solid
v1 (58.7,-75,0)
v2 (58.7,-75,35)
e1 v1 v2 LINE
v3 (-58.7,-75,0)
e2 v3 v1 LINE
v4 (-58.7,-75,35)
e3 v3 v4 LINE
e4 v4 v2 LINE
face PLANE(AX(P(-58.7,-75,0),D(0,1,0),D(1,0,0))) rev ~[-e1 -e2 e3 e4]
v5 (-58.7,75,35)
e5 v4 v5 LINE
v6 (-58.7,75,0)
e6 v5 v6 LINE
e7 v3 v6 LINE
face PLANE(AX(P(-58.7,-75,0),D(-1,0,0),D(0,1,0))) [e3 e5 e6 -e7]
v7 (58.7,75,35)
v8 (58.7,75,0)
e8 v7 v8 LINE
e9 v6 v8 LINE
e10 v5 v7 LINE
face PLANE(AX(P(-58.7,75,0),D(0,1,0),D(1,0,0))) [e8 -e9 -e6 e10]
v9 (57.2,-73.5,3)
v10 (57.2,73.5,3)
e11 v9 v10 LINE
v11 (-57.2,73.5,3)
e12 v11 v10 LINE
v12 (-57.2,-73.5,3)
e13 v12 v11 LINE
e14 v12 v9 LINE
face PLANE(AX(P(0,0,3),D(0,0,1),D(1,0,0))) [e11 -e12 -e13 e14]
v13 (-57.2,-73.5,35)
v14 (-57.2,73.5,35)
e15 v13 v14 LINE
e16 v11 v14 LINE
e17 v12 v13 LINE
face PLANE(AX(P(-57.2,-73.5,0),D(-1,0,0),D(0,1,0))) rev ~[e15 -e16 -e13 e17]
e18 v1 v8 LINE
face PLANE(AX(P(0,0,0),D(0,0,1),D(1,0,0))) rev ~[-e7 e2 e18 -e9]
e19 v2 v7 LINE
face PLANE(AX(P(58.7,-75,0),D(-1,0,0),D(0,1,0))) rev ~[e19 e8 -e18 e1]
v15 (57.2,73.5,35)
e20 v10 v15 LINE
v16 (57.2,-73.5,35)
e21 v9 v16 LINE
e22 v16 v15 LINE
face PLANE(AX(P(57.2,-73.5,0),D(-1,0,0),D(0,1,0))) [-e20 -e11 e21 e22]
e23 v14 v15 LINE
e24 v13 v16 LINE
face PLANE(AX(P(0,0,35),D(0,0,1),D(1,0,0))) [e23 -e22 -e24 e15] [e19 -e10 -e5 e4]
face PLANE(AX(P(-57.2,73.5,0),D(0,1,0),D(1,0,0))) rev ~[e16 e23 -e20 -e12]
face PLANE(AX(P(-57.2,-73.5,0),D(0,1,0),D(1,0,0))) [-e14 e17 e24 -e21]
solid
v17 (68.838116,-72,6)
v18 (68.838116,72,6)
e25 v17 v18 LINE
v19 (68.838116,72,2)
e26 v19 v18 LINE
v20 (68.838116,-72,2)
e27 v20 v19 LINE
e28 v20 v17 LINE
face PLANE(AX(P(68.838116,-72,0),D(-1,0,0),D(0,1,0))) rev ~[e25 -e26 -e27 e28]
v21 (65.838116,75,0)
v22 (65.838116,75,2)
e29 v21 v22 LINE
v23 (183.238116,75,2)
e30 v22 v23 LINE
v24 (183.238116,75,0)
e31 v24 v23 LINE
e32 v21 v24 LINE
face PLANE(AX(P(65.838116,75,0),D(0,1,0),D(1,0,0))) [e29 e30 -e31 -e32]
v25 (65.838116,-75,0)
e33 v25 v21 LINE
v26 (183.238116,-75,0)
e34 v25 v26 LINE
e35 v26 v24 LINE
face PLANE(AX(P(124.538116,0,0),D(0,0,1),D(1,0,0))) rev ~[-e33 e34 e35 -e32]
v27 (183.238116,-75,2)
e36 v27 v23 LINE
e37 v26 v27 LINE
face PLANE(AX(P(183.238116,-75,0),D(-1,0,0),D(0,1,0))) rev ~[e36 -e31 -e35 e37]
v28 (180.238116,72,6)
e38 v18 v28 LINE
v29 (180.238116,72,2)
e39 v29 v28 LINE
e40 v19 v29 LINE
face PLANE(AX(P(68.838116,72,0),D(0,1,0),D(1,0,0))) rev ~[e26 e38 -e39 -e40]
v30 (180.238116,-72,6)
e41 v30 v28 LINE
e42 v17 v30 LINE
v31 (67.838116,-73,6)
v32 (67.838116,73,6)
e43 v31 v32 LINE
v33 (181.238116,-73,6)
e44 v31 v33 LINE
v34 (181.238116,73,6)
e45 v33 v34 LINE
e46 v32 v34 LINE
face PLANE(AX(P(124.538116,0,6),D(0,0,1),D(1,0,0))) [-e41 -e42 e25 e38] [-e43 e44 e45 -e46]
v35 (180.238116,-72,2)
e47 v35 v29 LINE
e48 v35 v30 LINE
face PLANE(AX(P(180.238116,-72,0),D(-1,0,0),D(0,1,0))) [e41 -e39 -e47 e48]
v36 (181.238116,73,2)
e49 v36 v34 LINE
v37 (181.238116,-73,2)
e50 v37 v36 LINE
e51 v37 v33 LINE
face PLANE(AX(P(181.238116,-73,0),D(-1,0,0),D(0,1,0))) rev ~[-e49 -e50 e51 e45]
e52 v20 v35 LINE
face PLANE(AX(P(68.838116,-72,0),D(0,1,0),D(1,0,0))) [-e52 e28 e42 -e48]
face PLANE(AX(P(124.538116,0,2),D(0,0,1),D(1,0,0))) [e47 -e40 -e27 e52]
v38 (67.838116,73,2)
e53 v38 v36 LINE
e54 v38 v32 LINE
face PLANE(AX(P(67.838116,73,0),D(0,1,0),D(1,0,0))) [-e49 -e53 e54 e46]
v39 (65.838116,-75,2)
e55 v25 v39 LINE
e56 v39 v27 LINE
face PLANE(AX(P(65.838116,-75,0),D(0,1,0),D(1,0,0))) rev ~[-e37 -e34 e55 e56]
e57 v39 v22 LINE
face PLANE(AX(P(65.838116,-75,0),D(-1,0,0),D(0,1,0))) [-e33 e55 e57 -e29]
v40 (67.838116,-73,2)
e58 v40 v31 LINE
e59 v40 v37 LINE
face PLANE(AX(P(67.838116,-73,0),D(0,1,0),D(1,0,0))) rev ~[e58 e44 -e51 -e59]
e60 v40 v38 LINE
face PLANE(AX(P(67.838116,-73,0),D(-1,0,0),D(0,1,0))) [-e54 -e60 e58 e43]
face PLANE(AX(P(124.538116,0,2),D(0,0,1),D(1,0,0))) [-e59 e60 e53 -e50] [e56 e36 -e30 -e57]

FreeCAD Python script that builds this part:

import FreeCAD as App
import Part
import Sketcher
Q = App.Units.Quantity

doc = App.newDocument("Part")
body = doc.addObject("PartDesign::Body", "Body")

sketch1 = doc.addObject("Sketcher::SketchObject", "Sketch")
body.addObject(sketch1)
sketch1.AttachmentSupport = (doc.XY_Plane, [""])
sketch1.MapMode = "FlatFace"
sketch1.addGeometry(Part.LineSegment(App.Vector(-59, 75, 0), App.Vector(-59, -75, 0)), False)
sketch1.addGeometry(Part.LineSegment(App.Vector(-59, -75, 0), App.Vector(59, -75, 0)), False)
sketch1.addGeometry(Part.LineSegment(App.Vector(59, -75, 0), App.Vector(59, 75, 0)), False)
sketch1.addGeometry(Part.LineSegment(App.Vector(59, 75, 0), App.Vector(-59, 75, 0)), False)
sketch1.addGeometry(Part.LineSegment(App.Vector(57, -74, 0), App.Vector(-57, -74, 0)), False)
sketch1.addGeometry(Part.LineSegment(App.Vector(-57, -74, 0), App.Vector(-57, 74, 0)), False)
sketch1.addGeometry(Part.LineSegment(App.Vector(-57, 74, 0), App.Vector(57, 74, 0)), False)
sketch1.addGeometry(Part.LineSegment(App.Vector(57, 74, 0), App.Vector(57, -74, 0)), False)
sketch1.addConstraint(Sketcher.Constraint("Coincident", 0, 2, 1, 1))
sketch1.addConstraint(Sketcher.Constraint("Coincident", 1, 2, 2, 1))
sketch1.addConstraint(Sketcher.Constraint("Coincident", 2, 2, 3, 1))
sketch1.addConstraint(Sketcher.Constraint("Coincident", 3, 2, 0, 1))
sketch1.addConstraint(Sketcher.Constraint("Coincident", 4, 2, 5, 1))
sketch1.addConstraint(Sketcher.Constraint("Coincident", 5, 2, 6, 1))
sketch1.addConstraint(Sketcher.Constraint("Coincident", 6, 2, 7, 1))
sketch1.addConstraint(Sketcher.Constraint("Coincident", 7, 2, 4, 1))
sketch1.addConstraint(Sketcher.Constraint("Vertical", 0))
sketch1.addConstraint(Sketcher.Constraint("Horizontal", 1))
sketch1.addConstraint(Sketcher.Constraint("Vertical", 2))
sketch1.addConstraint(Sketcher.Constraint("Horizontal", 3))
sketch1.addConstraint(Sketcher.Constraint("Horizontal", 4))
sketch1.addConstraint(Sketcher.Constraint("Vertical", 5))
sketch1.addConstraint(Sketcher.Constraint("Horizontal", 6))
sketch1.addConstraint(Sketcher.Constraint("Vertical", 7))
sketch1.addConstraint(Sketcher.Constraint("Symmetric", 0, 2, 2, 2, -1, 1))
sketch1.addConstraint(Sketcher.Constraint("Symmetric", 4, 2, 6, 2, -1, 1))
sketch1.addConstraint(Sketcher.Constraint("DistanceY", 0, 2, 0, 1, Q("150 mm")))
sketch1.addConstraint(Sketcher.Constraint("DistanceY", 5, 1, 5, 2, Q("147 mm")))
sketch1.addConstraint(Sketcher.Constraint("DistanceX", 1, 1, 1, 2, Q("117.4 mm")))
sketch1.addConstraint(Sketcher.Constraint("DistanceX", 4, 2, 4, 1, Q("114.4 mm")))
pad1 = doc.addObject("PartDesign::Pad", "Pad")
body.addObject(pad1)
pad1.Profile = sketch1
pad1.Length = 35

sketch2 = doc.addObject("Sketcher::SketchObject", "Sketch001")
body.addObject(sketch2)
sketch2.AttachmentSupport = (doc.XY_Plane, [""])
sketch2.MapMode = "FlatFace"
sketch2.addGeometry(Part.LineSegment(App.Vector(-59, 75, 0), App.Vector(-59, -75, 0)), False)
sketch2.addGeometry(Part.LineSegment(App.Vector(-59, -75, 0), App.Vector(59, -75, 0)), False)
sketch2.addGeometry(Part.LineSegment(App.Vector(59, -75, 0), App.Vector(59, 75, 0)), False)
sketch2.addGeometry(Part.LineSegment(App.Vector(59, 75, 0), App.Vector(-59, 75, 0)), False)
sketch2.addConstraint(Sketcher.Constraint("Coincident", 0, 2, 1, 1))
sketch2.addConstraint(Sketcher.Constraint("Coincident", 1, 2, 2, 1))
sketch2.addConstraint(Sketcher.Constraint("Coincident", 2, 2, 3, 1))
sketch2.addConstraint(Sketcher.Constraint("Coincident", 3, 2, 0, 1))
sketch2.addConstraint(Sketcher.Constraint("Vertical", 0))
sketch2.addConstraint(Sketcher.Constraint("Horizontal", 1))
sketch2.addConstraint(Sketcher.Constraint("Vertical", 2))
sketch2.addConstraint(Sketcher.Constraint("Horizontal", 3))
sketch2.addConstraint(Sketcher.Constraint("Symmetric", 0, 2, 2, 2, -1, 1))
sketch2.addConstraint(Sketcher.Constraint("DistanceY", 0, 2, 0, 1, Q("150 mm")))
sketch2.addConstraint(Sketcher.Constraint("DistanceX", 1, 1, 1, 2, Q("117.4 mm")))
pad2 = doc.addObject("PartDesign::Pad", "Pad001")
body.addObject(pad2)
pad2.Profile = sketch2
pad2.Length = 3
body2 = doc.addObject("PartDesign::Body", "Body001")

sketch3 = doc.addObject("Sketcher::SketchObject", "Sketch002")
body2.addObject(sketch3)
sketch3.AttachmentSupport = (doc.getObject("XY_Plane001"), [""])
sketch3.MapMode = "FlatFace"
sketch3.addGeometry(Part.LineSegment(App.Vector(68, 73, 0), App.Vector(68, -73, 0)), False)
sketch3.addGeometry(Part.LineSegment(App.Vector(68, -73, 0), App.Vector(181, -73, 0)), False)
sketch3.addGeometry(Part.LineSegment(App.Vector(181, -73, 0), App.Vector(181, 73, 0)), False)
sketch3.addGeometry(Part.LineSegment(App.Vector(181, 73, 0), App.Vector(68, 73, 0)), False)
sketch3.addGeometry(Part.LineSegment(App.Vector(180, -72, 0), App.Vector(69, -72, 0)), False)
sketch3.addGeometry(Part.LineSegment(App.Vector(69, -72, 0), App.Vector(69, 72, 0)), False)
sketch3.addGeometry(Part.LineSegment(App.Vector(69, 72, 0), App.Vector(180, 72, 0)), False)
sketch3.addGeometry(Part.LineSegment(App.Vector(180, 72, 0), App.Vector(180, -72, 0)), False)
sketch3.addConstraint(Sketcher.Constraint("Coincident", 0, 2, 1, 1))
sketch3.addConstraint(Sketcher.Constraint("Coincident", 1, 2, 2, 1))
sketch3.addConstraint(Sketcher.Constraint("Coincident", 2, 2, 3, 1))
sketch3.addConstraint(Sketcher.Constraint("Coincident", 3, 2, 0, 1))
sketch3.addConstraint(Sketcher.Constraint("Coincident", 4, 2, 5, 1))
sketch3.addConstraint(Sketcher.Constraint("Coincident", 5, 2, 6, 1))
sketch3.addConstraint(Sketcher.Constraint("Coincident", 6, 2, 7, 1))
sketch3.addConstraint(Sketcher.Constraint("Coincident", 7, 2, 4, 1))
sketch3.addConstraint(Sketcher.Constraint("Vertical", 0))
sketch3.addConstraint(Sketcher.Constraint("Horizontal", 1))
sketch3.addConstraint(Sketcher.Constraint("Vertical", 2))
sketch3.addConstraint(Sketcher.Constraint("Horizontal", 3))
sketch3.addConstraint(Sketcher.Constraint("Horizontal", 4))
sketch3.addConstraint(Sketcher.Constraint("Vertical", 5))
sketch3.addConstraint(Sketcher.Constraint("Horizontal", 6))
sketch3.addConstraint(Sketcher.Constraint("Vertical", 7))
sketch3.addConstraint(Sketcher.Constraint("DistanceY", 0, 2, 0, 1, Q("146 mm")))
sketch3.addConstraint(Sketcher.Constraint("DistanceY", 5, 1, 5, 2, Q("144 mm")))
sketch3.addConstraint(Sketcher.Constraint("DistanceX", 1, 1, 1, 2, Q("113.4 mm")))
sketch3.addConstraint(Sketcher.Constraint("DistanceX", 4, 2, 4, 1, Q("111.4 mm")))
sketch3.addConstraint(Sketcher.Constraint("DistanceY", 0, 2, -1, 1, Q("73 mm")))
sketch3.addConstraint(Sketcher.Constraint("DistanceY", 4, 2, -1, 1, Q("72 mm")))
sketch3.addConstraint(Sketcher.Constraint("DistanceX", 0, 2, 4, 2, Q("1 mm")))
sketch3.addConstraint(Sketcher.Constraint("DistanceX", -1, 1, 0, 2, Q("67.838116 mm")))
pad3 = doc.addObject("PartDesign::Pad", "Pad002")
body2.addObject(pad3)
pad3.Profile = sketch3
pad3.Length = 6

sketch4 = doc.addObject("Sketcher::SketchObject", "Sketch003")
body2.addObject(sketch4)
sketch4.AttachmentSupport = (doc.getObject("XY_Plane001"), [""])
sketch4.MapMode = "FlatFace"
sketch4.addGeometry(Part.LineSegment(App.Vector(66, 75, 0), App.Vector(66, -75, 0)), False)
sketch4.addGeometry(Part.LineSegment(App.Vector(66, -75, 0), App.Vector(183, -75, 0)), False)
sketch4.addGeometry(Part.LineSegment(App.Vector(183, -75, 0), App.Vector(183, 75, 0)), False)
sketch4.addGeometry(Part.LineSegment(App.Vector(183, 75, 0), App.Vector(66, 75, 0)), False)
sketch4.addGeometry(Part.LineSegment(App.Vector(181, -73, 0), App.Vector(68, -73, 0)), False)
sketch4.addGeometry(Part.LineSegment(App.Vector(68, -73, 0), App.Vector(68, 73, 0)), False)
sketch4.addGeometry(Part.LineSegment(App.Vector(68, 73, 0), App.Vector(181, 73, 0)), False)
sketch4.addGeometry(Part.LineSegment(App.Vector(181, 73, 0), App.Vector(181, -73, 0)), False)
sketch4.addGeometry(Part.LineSegment(App.Vector(69, 72, 0), App.Vector(69, -72, 0)), False)
sketch4.addGeometry(Part.LineSegment(App.Vector(69, -72, 0), App.Vector(180, -72, 0)), False)
sketch4.addGeometry(Part.LineSegment(App.Vector(180, -72, 0), App.Vector(180, 72, 0)), False)
sketch4.addGeometry(Part.LineSegment(App.Vector(180, 72, 0), App.Vector(69, 72, 0)), False)
sketch4.addConstraint(Sketcher.Constraint("Coincident", 0, 2, 1, 1))
sketch4.addConstraint(Sketcher.Constraint("Coincident", 1, 2, 2, 1))
sketch4.addConstraint(Sketcher.Constraint("Coincident", 2, 2, 3, 1))
sketch4.addConstraint(Sketcher.Constraint("Coincident", 3, 2, 0, 1))
sketch4.addConstraint(Sketcher.Constraint("Coincident", 4, 2, 5, 1))
sketch4.addConstraint(Sketcher.Constraint("Coincident", 5, 2, 6, 1))
sketch4.addConstraint(Sketcher.Constraint("Coincident", 6, 2, 7, 1))
sketch4.addConstraint(Sketcher.Constraint("Coincident", 7, 2, 4, 1))
sketch4.addConstraint(Sketcher.Constraint("Coincident", 8, 2, 9, 1))
sketch4.addConstraint(Sketcher.Constraint("Coincident", 9, 2, 10, 1))
sketch4.addConstraint(Sketcher.Constraint("Coincident", 10, 2, 11, 1))
sketch4.addConstraint(Sketcher.Constraint("Coincident", 11, 2, 8, 1))
sketch4.addConstraint(Sketcher.Constraint("Vertical", 0))
sketch4.addConstraint(Sketcher.Constraint("Horizontal", 1))
sketch4.addConstraint(Sketcher.Constraint("Vertical", 2))
sketch4.addConstraint(Sketcher.Constraint("Horizontal", 3))
sketch4.addConstraint(Sketcher.Constraint("Horizontal", 4))
sketch4.addConstraint(Sketcher.Constraint("Vertical", 5))
sketch4.addConstraint(Sketcher.Constraint("Horizontal", 6))
sketch4.addConstraint(Sketcher.Constraint("Vertical", 7))
sketch4.addConstraint(Sketcher.Constraint("Vertical", 8))
sketch4.addConstraint(Sketcher.Constraint("Horizontal", 9))
sketch4.addConstraint(Sketcher.Constraint("Vertical", 10))
sketch4.addConstraint(Sketcher.Constraint("Horizontal", 11))
sketch4.addConstraint(Sketcher.Constraint("DistanceY", 0, 2, 0, 1, Q("150 mm")))
sketch4.addConstraint(Sketcher.Constraint("DistanceY", 5, 1, 5, 2, Q("146 mm")))
sketch4.addConstraint(Sketcher.Constraint("DistanceY", 8, 2, 8, 1, Q("144 mm")))
sketch4.addConstraint(Sketcher.Constraint("DistanceX", 1, 1, 1, 2, Q("117.4 mm")))
sketch4.addConstraint(Sketcher.Constraint("DistanceX", 4, 2, 4, 1, Q("113.4 mm")))
sketch4.addConstraint(Sketcher.Constraint("DistanceX", 9, 1, 9, 2, Q("111.4 mm")))
sketch4.addConstraint(Sketcher.Constraint("DistanceY", 0, 2, -1, 1, Q("75 mm")))
sketch4.addConstraint(Sketcher.Constraint("DistanceY", 4, 2, -1, 1, Q("73 mm")))
sketch4.addConstraint(Sketcher.Constraint("DistanceY", 8, 2, -1, 1, Q("72 mm")))
sketch4.addConstraint(Sketcher.Constraint("DistanceX", 0, 2, 4, 2, Q("2 mm")))
sketch4.addConstraint(Sketcher.Constraint("DistanceX", 4, 2, 8, 2, Q("1 mm")))
sketch4.addConstraint(Sketcher.Constraint("DistanceX", -1, 1, 0, 2, Q("65.838116 mm")))
pad4 = doc.addObject("PartDesign::Pad", "Pad003")
body2.addObject(pad4)
pad4.Profile = sketch4
pad4.Length = 2

doc.recompute()
